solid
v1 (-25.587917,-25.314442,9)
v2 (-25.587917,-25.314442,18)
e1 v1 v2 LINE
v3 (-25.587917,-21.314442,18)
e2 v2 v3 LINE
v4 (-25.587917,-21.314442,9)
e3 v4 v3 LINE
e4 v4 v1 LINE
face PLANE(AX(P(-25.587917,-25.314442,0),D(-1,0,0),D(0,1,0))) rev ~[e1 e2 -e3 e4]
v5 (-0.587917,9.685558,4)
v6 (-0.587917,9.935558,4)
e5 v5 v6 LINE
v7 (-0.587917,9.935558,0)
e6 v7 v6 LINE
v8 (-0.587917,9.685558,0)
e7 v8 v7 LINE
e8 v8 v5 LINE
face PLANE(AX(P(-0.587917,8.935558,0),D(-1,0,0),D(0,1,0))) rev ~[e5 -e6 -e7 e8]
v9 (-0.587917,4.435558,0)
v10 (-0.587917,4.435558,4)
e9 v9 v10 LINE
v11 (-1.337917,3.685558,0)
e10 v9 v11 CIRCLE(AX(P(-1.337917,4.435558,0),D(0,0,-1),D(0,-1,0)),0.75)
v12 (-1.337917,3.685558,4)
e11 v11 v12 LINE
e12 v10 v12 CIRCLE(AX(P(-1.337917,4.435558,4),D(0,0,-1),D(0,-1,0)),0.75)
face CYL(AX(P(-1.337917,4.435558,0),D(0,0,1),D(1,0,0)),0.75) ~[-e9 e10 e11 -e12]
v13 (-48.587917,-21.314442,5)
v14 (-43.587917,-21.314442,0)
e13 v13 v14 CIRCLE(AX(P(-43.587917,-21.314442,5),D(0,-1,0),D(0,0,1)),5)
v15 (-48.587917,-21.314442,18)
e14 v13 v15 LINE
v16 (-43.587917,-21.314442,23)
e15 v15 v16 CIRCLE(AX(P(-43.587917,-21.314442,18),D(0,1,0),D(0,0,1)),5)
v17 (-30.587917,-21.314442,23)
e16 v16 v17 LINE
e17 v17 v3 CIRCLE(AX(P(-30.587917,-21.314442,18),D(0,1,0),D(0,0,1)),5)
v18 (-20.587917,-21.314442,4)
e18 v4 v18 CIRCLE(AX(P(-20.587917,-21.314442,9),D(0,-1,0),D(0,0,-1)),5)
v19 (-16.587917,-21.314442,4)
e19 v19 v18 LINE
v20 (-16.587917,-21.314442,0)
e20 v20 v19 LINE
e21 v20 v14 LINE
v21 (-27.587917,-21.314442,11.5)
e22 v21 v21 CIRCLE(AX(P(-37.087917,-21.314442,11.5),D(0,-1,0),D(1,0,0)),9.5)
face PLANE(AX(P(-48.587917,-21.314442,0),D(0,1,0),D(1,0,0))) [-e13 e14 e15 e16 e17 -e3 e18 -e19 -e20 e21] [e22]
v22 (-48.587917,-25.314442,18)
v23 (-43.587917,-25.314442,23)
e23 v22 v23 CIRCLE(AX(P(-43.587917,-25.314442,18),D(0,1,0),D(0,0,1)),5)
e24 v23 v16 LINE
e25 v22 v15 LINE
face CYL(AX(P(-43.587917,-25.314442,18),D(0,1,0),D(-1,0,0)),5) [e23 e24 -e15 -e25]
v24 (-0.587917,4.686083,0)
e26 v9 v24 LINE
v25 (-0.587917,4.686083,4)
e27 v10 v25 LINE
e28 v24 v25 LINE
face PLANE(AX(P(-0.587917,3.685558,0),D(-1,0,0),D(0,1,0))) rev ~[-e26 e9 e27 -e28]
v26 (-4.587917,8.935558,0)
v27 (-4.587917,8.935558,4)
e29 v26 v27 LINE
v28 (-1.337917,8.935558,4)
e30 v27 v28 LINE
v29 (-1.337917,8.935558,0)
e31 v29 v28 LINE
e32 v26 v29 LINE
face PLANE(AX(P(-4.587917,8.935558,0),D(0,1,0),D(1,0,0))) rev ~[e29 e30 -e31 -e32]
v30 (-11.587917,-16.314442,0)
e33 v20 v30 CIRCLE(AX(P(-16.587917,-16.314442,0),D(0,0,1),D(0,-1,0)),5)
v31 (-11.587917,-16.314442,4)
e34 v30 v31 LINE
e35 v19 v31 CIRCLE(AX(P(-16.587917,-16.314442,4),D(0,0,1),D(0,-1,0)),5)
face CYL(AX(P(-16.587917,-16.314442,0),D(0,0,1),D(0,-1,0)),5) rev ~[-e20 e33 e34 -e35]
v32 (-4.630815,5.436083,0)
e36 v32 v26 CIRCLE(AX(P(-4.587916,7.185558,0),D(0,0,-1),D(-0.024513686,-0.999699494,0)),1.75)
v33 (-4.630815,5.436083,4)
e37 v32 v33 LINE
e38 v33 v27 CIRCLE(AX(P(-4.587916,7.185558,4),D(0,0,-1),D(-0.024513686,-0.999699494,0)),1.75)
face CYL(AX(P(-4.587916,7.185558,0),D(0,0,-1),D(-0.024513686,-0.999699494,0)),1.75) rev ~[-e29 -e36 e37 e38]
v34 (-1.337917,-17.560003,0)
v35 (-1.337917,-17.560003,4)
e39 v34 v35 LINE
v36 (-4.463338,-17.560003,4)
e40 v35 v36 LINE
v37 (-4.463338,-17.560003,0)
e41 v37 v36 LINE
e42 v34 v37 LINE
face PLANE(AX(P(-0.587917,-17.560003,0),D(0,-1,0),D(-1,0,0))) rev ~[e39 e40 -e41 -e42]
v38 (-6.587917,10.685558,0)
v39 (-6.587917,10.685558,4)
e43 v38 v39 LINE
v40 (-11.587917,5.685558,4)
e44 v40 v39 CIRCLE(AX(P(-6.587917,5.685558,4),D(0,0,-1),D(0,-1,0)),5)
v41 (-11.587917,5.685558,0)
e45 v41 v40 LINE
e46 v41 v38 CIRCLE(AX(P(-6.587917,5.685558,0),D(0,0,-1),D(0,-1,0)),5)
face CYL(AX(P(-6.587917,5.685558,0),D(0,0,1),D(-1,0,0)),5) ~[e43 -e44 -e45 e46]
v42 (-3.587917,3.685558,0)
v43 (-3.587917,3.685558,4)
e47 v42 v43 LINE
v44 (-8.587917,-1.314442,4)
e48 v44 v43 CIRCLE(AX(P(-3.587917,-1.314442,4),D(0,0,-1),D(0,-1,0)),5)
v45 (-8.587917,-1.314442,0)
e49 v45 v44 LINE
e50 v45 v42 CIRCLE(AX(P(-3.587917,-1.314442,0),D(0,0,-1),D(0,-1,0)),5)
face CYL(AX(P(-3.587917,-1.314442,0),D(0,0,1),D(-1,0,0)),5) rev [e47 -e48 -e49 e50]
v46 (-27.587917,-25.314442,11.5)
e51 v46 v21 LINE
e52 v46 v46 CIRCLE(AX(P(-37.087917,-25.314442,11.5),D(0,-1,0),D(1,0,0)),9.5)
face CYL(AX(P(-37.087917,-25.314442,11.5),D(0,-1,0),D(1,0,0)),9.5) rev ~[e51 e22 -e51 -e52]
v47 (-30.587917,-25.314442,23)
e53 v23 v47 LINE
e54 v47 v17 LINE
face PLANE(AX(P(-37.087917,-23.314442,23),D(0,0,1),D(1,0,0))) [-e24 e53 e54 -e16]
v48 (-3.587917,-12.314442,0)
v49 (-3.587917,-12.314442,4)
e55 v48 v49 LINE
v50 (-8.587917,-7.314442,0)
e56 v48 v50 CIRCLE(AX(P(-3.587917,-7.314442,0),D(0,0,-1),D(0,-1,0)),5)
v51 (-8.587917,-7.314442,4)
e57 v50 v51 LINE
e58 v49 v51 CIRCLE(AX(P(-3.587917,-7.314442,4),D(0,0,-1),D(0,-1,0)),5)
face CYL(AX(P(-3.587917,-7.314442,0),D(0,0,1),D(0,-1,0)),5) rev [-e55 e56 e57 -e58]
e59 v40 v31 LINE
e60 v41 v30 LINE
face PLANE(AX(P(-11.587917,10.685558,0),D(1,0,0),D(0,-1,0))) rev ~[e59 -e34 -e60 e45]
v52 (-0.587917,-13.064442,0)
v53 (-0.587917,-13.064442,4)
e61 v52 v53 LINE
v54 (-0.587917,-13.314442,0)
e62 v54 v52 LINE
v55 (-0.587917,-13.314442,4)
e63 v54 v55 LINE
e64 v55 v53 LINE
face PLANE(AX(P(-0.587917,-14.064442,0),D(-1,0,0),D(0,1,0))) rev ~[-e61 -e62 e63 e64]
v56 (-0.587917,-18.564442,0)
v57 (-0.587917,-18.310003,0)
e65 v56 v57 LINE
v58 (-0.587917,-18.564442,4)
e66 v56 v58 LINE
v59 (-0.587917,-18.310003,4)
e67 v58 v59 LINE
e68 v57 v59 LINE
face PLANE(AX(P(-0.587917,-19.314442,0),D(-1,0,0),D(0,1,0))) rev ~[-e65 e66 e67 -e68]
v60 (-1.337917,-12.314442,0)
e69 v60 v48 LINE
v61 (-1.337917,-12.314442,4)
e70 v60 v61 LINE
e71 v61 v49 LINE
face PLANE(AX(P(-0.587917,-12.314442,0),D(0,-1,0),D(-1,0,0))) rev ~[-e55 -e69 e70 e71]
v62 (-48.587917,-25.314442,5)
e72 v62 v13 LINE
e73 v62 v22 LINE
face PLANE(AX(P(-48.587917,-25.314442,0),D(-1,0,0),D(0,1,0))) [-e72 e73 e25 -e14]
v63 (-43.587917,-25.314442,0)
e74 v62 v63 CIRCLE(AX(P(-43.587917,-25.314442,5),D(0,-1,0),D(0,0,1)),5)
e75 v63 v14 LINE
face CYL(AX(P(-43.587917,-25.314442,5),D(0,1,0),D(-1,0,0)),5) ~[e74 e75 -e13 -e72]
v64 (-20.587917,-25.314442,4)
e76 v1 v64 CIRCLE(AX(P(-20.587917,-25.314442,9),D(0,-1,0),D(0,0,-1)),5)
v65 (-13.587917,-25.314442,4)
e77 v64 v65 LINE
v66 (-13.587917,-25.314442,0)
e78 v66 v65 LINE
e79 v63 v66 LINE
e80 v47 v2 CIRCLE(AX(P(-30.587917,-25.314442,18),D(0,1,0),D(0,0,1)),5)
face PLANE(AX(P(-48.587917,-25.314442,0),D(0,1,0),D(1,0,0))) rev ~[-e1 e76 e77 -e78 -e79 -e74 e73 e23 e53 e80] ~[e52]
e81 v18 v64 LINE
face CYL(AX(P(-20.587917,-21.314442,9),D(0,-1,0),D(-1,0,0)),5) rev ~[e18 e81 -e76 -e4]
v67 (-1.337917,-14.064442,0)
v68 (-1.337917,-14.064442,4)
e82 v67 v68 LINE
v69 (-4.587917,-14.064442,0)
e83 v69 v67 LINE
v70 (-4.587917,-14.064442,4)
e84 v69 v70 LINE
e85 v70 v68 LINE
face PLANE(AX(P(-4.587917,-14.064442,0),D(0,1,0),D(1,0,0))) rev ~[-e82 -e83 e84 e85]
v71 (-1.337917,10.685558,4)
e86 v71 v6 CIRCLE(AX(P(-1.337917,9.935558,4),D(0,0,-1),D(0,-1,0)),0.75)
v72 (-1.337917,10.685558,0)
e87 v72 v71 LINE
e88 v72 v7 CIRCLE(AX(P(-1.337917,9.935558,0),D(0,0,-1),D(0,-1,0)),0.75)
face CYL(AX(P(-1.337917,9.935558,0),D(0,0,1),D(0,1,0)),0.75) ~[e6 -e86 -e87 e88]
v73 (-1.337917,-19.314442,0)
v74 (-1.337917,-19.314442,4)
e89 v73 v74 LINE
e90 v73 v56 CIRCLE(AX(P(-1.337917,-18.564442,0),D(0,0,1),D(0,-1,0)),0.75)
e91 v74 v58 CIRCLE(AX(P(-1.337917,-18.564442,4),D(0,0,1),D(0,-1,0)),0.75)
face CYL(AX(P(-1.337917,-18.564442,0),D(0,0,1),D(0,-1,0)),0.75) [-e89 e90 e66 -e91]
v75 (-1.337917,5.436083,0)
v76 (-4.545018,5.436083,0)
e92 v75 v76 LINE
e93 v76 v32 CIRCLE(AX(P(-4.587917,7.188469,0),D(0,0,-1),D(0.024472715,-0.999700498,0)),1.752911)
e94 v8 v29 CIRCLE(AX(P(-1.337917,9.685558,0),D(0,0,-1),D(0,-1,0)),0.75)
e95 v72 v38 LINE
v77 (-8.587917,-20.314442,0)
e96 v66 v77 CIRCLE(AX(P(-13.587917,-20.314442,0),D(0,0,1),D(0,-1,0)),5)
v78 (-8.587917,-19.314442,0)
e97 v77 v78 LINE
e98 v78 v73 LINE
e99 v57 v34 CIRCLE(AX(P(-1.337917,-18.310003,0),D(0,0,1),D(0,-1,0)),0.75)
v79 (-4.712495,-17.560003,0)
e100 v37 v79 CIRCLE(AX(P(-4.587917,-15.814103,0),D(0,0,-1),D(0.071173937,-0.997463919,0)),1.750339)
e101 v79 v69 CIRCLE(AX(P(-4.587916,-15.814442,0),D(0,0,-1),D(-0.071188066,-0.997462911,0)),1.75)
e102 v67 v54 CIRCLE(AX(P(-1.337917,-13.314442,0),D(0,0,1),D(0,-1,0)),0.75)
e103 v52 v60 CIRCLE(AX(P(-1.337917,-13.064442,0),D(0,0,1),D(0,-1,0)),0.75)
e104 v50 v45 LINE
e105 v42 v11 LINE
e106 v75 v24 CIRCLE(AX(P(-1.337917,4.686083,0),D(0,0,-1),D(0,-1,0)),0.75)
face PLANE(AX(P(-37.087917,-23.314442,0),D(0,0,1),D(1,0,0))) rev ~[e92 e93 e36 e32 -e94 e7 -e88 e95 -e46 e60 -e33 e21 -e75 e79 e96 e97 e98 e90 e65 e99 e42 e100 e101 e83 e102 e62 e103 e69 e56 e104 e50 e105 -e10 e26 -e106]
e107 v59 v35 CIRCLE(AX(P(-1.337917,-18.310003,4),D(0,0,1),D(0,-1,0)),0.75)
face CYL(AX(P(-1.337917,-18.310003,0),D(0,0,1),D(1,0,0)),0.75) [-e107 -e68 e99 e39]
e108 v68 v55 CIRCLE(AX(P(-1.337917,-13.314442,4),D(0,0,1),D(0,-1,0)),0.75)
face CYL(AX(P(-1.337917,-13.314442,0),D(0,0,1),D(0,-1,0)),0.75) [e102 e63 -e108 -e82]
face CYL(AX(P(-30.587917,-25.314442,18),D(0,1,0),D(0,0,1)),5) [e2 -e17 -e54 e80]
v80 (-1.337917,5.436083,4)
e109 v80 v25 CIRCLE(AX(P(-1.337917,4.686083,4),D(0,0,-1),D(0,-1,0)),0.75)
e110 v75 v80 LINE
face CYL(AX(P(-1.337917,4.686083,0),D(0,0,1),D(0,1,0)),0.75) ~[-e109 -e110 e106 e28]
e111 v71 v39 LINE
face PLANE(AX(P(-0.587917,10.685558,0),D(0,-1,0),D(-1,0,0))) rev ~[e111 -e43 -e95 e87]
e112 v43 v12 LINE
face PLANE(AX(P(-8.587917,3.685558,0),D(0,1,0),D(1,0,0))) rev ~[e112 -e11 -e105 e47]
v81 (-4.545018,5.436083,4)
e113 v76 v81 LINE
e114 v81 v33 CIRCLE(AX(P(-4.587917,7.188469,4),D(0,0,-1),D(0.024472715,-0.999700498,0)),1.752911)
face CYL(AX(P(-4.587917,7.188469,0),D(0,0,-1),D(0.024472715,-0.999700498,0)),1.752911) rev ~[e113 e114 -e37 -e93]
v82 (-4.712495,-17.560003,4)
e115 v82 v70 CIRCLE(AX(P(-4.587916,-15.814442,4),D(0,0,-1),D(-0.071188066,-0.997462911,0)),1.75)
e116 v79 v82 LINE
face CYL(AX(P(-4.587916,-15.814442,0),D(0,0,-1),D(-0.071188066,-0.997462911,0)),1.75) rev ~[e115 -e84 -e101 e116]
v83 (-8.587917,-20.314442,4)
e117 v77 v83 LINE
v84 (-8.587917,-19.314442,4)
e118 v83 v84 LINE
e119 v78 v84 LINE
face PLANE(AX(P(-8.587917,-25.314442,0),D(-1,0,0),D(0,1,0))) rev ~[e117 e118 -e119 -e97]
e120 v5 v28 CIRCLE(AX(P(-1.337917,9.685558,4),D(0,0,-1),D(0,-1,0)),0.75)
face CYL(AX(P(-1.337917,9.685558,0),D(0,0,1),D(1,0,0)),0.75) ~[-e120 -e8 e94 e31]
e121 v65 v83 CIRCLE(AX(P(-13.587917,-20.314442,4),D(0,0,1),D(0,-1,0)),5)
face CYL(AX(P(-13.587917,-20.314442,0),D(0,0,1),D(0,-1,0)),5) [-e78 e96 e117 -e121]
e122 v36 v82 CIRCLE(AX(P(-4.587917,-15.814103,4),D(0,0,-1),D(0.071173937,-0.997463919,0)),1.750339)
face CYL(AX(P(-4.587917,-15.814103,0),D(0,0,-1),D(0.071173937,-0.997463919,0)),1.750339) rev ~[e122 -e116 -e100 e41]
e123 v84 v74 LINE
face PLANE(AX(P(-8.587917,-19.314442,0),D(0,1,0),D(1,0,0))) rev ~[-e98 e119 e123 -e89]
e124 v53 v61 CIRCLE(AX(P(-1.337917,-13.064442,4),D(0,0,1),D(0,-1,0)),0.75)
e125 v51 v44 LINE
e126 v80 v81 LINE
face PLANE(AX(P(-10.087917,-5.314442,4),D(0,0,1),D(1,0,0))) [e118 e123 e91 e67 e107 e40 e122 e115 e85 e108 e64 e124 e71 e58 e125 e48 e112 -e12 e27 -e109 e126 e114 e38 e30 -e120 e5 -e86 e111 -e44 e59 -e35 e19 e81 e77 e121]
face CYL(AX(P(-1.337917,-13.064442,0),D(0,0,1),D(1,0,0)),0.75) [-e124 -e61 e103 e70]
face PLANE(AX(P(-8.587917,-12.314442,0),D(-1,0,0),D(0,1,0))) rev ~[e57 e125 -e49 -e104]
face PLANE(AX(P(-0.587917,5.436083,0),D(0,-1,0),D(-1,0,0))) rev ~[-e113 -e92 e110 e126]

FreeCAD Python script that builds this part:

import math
import FreeCAD as App
import Part
import Sketcher
from FreeCAD import Vector


def edges_at(feature, points):
    """Names of the edges that pass closest to the given points."""
    edges = feature.Shape.Edges
    near = lambda p: min(range(len(edges)), key=lambda i: edges[i].distToShape(Part.Vertex(*p))[0])
    return sorted({f"Edge{near(p) + 1}" for p in points})


def add_polygon(sketch, points):
    """Adds a closed chain of lines whose ends are joined by coincident constraints."""
    first, n = sketch.GeometryCount, len(points)
    for a, b in zip(points, points[1:] + points[:1]):
        sketch.addGeometry(Part.LineSegment(App.Vector(*a, 0), App.Vector(*b, 0)), False)
    for i in range(n):
        sketch.addConstraint(Sketcher.Constraint("Coincident", first + i, 2, first + (i + 1) % n, 1))

doc = App.newDocument("Part")
params = doc.addObject("Spreadsheet::Sheet", "Params")
for row, (alias, value) in enumerate([
    ("sketch1_width", "14 mm"),
    ("sketch1_width2", "17 mm"),
    ("sketch1_width3", "8 mm"),
    ("sketch1_width4", "4 mm"),
    ("sketch1_height", "32 mm"),
    ("pad1_length", "4 mm"),
    ("sketch2_width", "23 mm"),
    ("sketch2_height", "4 mm"),
    ("pad2_length", "23 mm"),
    ("sketch3_diameter", "19 mm"),
    ("pocket1_length", "25 mm"),
    ("fillet_radius", "5 mm"),
    ("fillet2_radius", "5 mm"),
    ("fillet3_radius", "0.75 mm"),
], start=1):
    params.set(f"A{row}", alias)
    params.set(f"B{row}", "=" + value)
    params.setAlias(f"B{row}", alias)

body = doc.addObject("PartDesign::Body", "Body")

# Sketch on XY plane
sketch1 = body.newObject("Sketcher::SketchObject", "Sketch")
sketch1.AttachmentSupport = (doc.getObject("XY_Plane"), [""])
sketch1.MapMode = "FlatFace"
sketch1.addGeometry([
    Part.LineSegment(Vector(-11.59, 10.69, 0), Vector(-11.59, -21.31, 0)),  # 0
    Part.LineSegment(Vector(-11.59, -21.31, 0), Vector(-25.59, -21.31, 0)),  # 1
    Part.LineSegment(Vector(-25.59, -21.31, 0), Vector(-25.59, -25.31, 0)),  # 2
    Part.LineSegment(Vector(-25.59, -25.31, 0), Vector(-8.59, -25.31, 0)),  # 3
    Part.LineSegment(Vector(-8.59, -25.31, 0), Vector(-8.59, -19.31, 0)),  # 4
    Part.LineSegment(Vector(-8.59, -19.31, 0), Vector(-0.59, -19.31, 0)),  # 5
    Part.LineSegment(Vector(-0.59, -19.31, 0), Vector(-0.59, -17.56, 0)),  # 6
    Part.LineSegment(Vector(-0.59, -17.56, 0), Vector(-4.46, -17.56, 0)),  # 7
    Part.ArcOfCircle(Part.Circle(Vector(-4.59, -15.81, 0), Vector(0, 0, 1), 1.75), math.radians(-94.08), math.radians(-85.92)),  # 8
    Part.ArcOfCircle(Part.Circle(Vector(-4.59, -15.81, 0), Vector(0, 0, 1), 1.75), math.radians(90), math.radians(266)),  # 9
    Part.LineSegment(Vector(-4.59, -14.06, 0), Vector(-0.59, -14.06, 0)),  # 10
    Part.LineSegment(Vector(-0.59, -14.06, 0), Vector(-0.59, -12.31, 0)),  # 11
    Part.LineSegment(Vector(-0.59, -12.31, 0), Vector(-8.59, -12.31, 0)),  # 12
    Part.LineSegment(Vector(-8.59, -12.31, 0), Vector(-8.59, 3.69, 0)),  # 13
    Part.LineSegment(Vector(-8.59, 3.69, 0), Vector(-0.59, 3.69, 0)),  # 14
    Part.LineSegment(Vector(-0.59, 3.69, 0), Vector(-0.59, 5.44, 0)),  # 15
    Part.LineSegment(Vector(-0.59, 5.44, 0), Vector(-4.55, 5.44, 0)),  # 16
    Part.ArcOfCircle(Part.Circle(Vector(-4.59, 7.19, 0), Vector(0, 0, 1), 1.75), math.radians(-91.4), math.radians(-88.6)),  # 17
    Part.ArcOfCircle(Part.Circle(Vector(-4.59, 7.19, 0), Vector(0, 0, 1), 1.75), math.radians(90), math.radians(269)),  # 18
    Part.LineSegment(Vector(-4.59, 8.94, 0), Vector(-0.59, 8.94, 0)),  # 19
    Part.LineSegment(Vector(-0.59, 8.94, 0), Vector(-0.59, 10.69, 0)),  # 20
    Part.LineSegment(Vector(-0.59, 10.69, 0), Vector(-11.59, 10.69, 0)),  # 21
], False)
sketch1.addConstraint([
    Sketcher.Constraint("Coincident", 0, 2, 1, 1),
    Sketcher.Constraint("Coincident", 1, 2, 2, 1),
    Sketcher.Constraint("Coincident", 2, 2, 3, 1),
    Sketcher.Constraint("Coincident", 3, 2, 4, 1),
    Sketcher.Constraint("Coincident", 4, 2, 5, 1),
    Sketcher.Constraint("Coincident", 5, 2, 6, 1),
    Sketcher.Constraint("Coincident", 6, 2, 7, 1),
    Sketcher.Constraint("Coincident", 7, 2, 8, 2),
    Sketcher.Constraint("Coincident", 8, 1, 9, 2),
    Sketcher.Constraint("Tangent", 9, 1, 10, 1),
    Sketcher.Constraint("Coincident", 10, 2, 11, 1),
    Sketcher.Constraint("Coincident", 11, 2, 12, 1),
    Sketcher.Constraint("Coincident", 12, 2, 13, 1),
    Sketcher.Constraint("Coincident", 13, 2, 14, 1),
    Sketcher.Constraint("Coincident", 14, 2, 15, 1),
    Sketcher.Constraint("Coincident", 15, 2, 16, 1),
    Sketcher.Constraint("Coincident", 16, 2, 17, 2),
    Sketcher.Constraint("Coincident", 17, 1, 18, 2),
    Sketcher.Constraint("Tangent", 18, 1, 19, 1),
    Sketcher.Constraint("Coincident", 19, 2, 20, 1),
    Sketcher.Constraint("Coincident", 20, 2, 21, 1),
    Sketcher.Constraint("Coincident", 21, 2, 0, 1),
    Sketcher.Constraint("Vertical", 0),
    Sketcher.Constraint("Horizontal", 1),
    Sketcher.Constraint("Vertical", 2),
    Sketcher.Constraint("Horizontal", 3),
    Sketcher.Constraint("Vertical", 4),
    Sketcher.Constraint("Horizontal", 5),
    Sketcher.Constraint("Vertical", 6),
    Sketcher.Constraint("Horizontal", 7),
    Sketcher.Constraint("Horizontal", 10),
    Sketcher.Constraint("Vertical", 11),
    Sketcher.Constraint("Horizontal", 12),
    Sketcher.Constraint("Vertical", 13),
    Sketcher.Constraint("Horizontal", 14),
    Sketcher.Constraint("Vertical", 15),
    Sketcher.Constraint("Horizontal", 16),
    Sketcher.Constraint("Horizontal", 19),
    Sketcher.Constraint("Vertical", 20),
    Sketcher.Constraint("Horizontal", 21),
    Sketcher.Constraint("Equal", 9, 18),
    Sketcher.Constraint("Horizontal", 7, 2, 8, 1),
    Sketcher.Constraint("Horizontal", 16, 2, 17, 1),
    Sketcher.Constraint("Vertical", 8, 3, 9, 3),
    Sketcher.Constraint("Vertical", 9, 3, 17, 3),
    Sketcher.Constraint("Vertical", 17, 3, 18, 3),
    Sketcher.Constraint("Vertical", 6, 2, 10, 2),
    Sketcher.Constraint("Vertical", 4, 2, 12, 2),
    Sketcher.Constraint("Vertical", 11, 2, 14, 2),
    Sketcher.Constraint("Vertical", 15, 2, 19, 2),
    Sketcher.Constraint("Equal", 19, 2),
    Sketcher.Constraint("Equal", 11, 20),
    Sketcher.Constraint("DistanceX", 1, 2, 1, 1, 14.0),
    Sketcher.Constraint("DistanceX", 3, 1, 3, 2, 17.0),
    Sketcher.Constraint("DistanceX", 5, 1, 5, 2, 8.0),
    Sketcher.Constraint("DistanceX", 10, 1, 10, 2, 4.0),
    Sketcher.Constraint("DistanceY", 0, 2, 0, 1, 32.0),
    Sketcher.Constraint("DistanceY", 4, 1, 4, 2, 6.0),
    Sketcher.Constraint("DistanceY", 13, 1, 13, 2, 16.0),
    Sketcher.Constraint("Radius", 9, 1.75),
    Sketcher.Constraint("DistanceY", 9, 3, 18, 3, 23.0),
    Sketcher.Constraint("DistanceY", 11, 1, 11, 2, 1.75),
    Sketcher.Constraint("Radius", 8, 1.750339),
    Sketcher.Constraint("Radius", 17, 1.752911),
    Sketcher.Constraint("DistanceX", 16, 2, 16, 1, 3.957101),
    Sketcher.Constraint("DistanceX", 7, 2, 7, 1, 3.875421),
    Sketcher.Constraint("DistanceY", -1, 1, 17, 3, 7.188469),
    Sketcher.Constraint("DistanceX", 7, 2, -1, 1, 4.463338),
])
sketch1.setExpression("Constraints[52]", "Params.sketch1_width")
sketch1.setExpression("Constraints[53]", "Params.sketch1_width2")
sketch1.setExpression("Constraints[54]", "Params.sketch1_width3")
sketch1.setExpression("Constraints[55]", "Params.sketch1_width4")
sketch1.setExpression("Constraints[56]", "Params.sketch1_height")
pad1 = body.newObject("PartDesign::Pad", "Pad")
pad1.Profile = sketch1
pad1.setExpression("Length", "Params.pad1_length")

# Sketch on XY plane
sketch2 = body.newObject("Sketcher::SketchObject", "Sketch001")
sketch2.AttachmentSupport = (doc.getObject("XY_Plane"), [""])
sketch2.MapMode = "FlatFace"
add_polygon(sketch2, [(-48.6, -21.3), (-48.6, -25.3), (-25.6, -25.3), (-25.6, -21.3)])  # lines 0-3
sketch2.addConstraint([
    Sketcher.Constraint("Vertical", 0),
    Sketcher.Constraint("Horizontal", 1),
    Sketcher.Constraint("Vertical", 2),
    Sketcher.Constraint("Horizontal", 3),
    Sketcher.Constraint("DistanceX", 1, 1, 1, 2, 23.0),
    Sketcher.Constraint("DistanceY", 0, 2, 0, 1, 4.0),
    Sketcher.Constraint("DistanceY", 0, 2, -1, 1, 25.314442),
    Sketcher.Constraint("DistanceX", 0, 2, -1, 1, 48.587917),
])
sketch2.setExpression("Constraints[8]", "Params.sketch2_width")
sketch2.setExpression("Constraints[9]", "Params.sketch2_height")
pad2 = body.newObject("PartDesign::Pad", "Pad001")
pad2.Profile = sketch2
pad2.setExpression("Length", "Params.pad2_length")

# Sketch on XZ plane
sketch3 = body.newObject("Sketcher::SketchObject", "Sketch002")
sketch3.AttachmentSupport = (doc.getObject("XZ_Plane"), [""])
sketch3.MapMode = "FlatFace"
sketch3.AttachmentOffset = App.Placement(Vector(0, 0, 25.314442), App.Rotation())
sketch3.addGeometry(Part.Circle(Vector(-37, 12, 0), Vector(0, 0, 1), 10), False)
sketch3.addConstraint([
    Sketcher.Constraint("Diameter", 0, 19.0),
    Sketcher.Constraint("DistanceY", -1, 1, 0, 3, 11.5),
    Sketcher.Constraint("DistanceX", 0, 3, -1, 1, 37.087917),
])
sketch3.setExpression("Constraints[0]", "Params.sketch3_diameter")
pocket1 = body.newObject("PartDesign::Pocket", "Pocket")
pocket1.Profile = sketch3
pocket1.setExpression("Length", "Params.pocket1_length")
doc.recompute()

fillet = body.newObject("PartDesign::Fillet", "Fillet")
fillet.Base = (pocket1, edges_at(pocket1, [
    (-48.588, -23.314, 23),
    (-25.588, -23.314, 23),
    (-48.588, -23.314, 0),
    (-25.588, -23.314, 4),
]))
fillet.setExpression("Radius", "Params.fillet_radius")
doc.recompute()

fillet2 = body.newObject("PartDesign::Fillet", "Fillet001")
fillet2.Base = (fillet, edges_at(fillet, [
    (-8.588, -25.314, 2),
    (-11.588, -21.314, 2),
    (-8.588, -12.314, 2),
    (-8.588, 3.686, 2),
    (-11.588, 10.686, 2),
]))
fillet2.setExpression("Radius", "Params.fillet2_radius")
doc.recompute()

fillet3 = body.newObject("PartDesign::Fillet", "Fillet002")
fillet3.Base = (fillet2, edges_at(fillet2, [
    (-0.588, 10.686, 2),
    (-0.588, 8.936, 2),
    (-0.588, 5.436, 2),
    (-0.588, 3.686, 2),
    (-0.588, -12.314, 2),
    (-0.588, -14.064, 2),
    (-0.588, -17.56, 2),
    (-0.588, -19.314, 2),
]))
fillet3.setExpression("Radius", "Params.fillet3_radius")

doc.recompute()
